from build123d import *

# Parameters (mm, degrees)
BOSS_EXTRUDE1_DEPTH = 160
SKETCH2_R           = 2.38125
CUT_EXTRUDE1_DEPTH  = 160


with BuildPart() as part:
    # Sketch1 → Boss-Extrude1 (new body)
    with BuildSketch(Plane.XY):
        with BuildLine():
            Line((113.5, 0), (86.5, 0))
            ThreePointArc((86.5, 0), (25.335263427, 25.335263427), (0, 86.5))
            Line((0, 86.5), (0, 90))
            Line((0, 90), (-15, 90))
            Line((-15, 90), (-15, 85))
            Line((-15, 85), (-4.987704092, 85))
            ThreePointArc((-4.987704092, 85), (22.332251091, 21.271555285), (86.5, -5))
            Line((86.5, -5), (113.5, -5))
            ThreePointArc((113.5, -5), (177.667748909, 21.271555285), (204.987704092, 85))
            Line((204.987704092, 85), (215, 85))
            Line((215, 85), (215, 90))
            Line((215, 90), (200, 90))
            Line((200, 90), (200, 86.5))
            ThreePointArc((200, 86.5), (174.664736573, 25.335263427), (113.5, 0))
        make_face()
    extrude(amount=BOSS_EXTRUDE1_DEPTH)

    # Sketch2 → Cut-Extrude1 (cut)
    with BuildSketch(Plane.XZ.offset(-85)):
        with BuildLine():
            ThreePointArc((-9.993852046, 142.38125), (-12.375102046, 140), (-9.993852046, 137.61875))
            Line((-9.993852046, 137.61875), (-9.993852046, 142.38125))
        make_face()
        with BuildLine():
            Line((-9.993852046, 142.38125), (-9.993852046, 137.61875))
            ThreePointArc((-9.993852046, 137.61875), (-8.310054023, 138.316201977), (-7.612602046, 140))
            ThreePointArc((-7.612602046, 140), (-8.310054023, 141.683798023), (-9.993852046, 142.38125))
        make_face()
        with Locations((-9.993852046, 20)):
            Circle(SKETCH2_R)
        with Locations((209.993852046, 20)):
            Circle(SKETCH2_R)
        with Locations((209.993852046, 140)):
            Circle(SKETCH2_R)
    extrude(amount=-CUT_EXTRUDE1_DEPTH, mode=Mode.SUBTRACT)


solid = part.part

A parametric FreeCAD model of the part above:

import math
import FreeCAD as App
import Part
import Sketcher

V = App.Vector
Q = App.Units.Quantity

doc = App.newDocument("Part")
body = doc.addObject("PartDesign::Body", "Body")

# Sketch on XY plane
sketch1 = body.newObject("Sketcher::SketchObject", "Sketch")
sketch1.AttachmentSupport = (doc.getObject("XY_Plane"), [""])
sketch1.MapMode = "FlatFace"
sketch1.addGeometry(Part.LineSegment(V(113.5, 0, 0), V(86.5, 0, 0)), False)
sketch1.addGeometry(Part.ArcOfCircle(Part.Circle(V(86.5, 86.5, 0), V(0, 0, 1), 86.5), math.radians(180), math.radians(270)), False)
sketch1.addGeometry(Part.LineSegment(V(0, 86.5, 0), V(0, 90, 0)), False)
sketch1.addGeometry(Part.LineSegment(V(0, 90, 0), V(-15, 90, 0)), False)
sketch1.addGeometry(Part.LineSegment(V(-15, 90, 0), V(-15, 85, 0)), False)
sketch1.addGeometry(Part.LineSegment(V(-15, 85, 0), V(-5, 85, 0)), False)
sketch1.addGeometry(Part.ArcOfCircle(Part.Circle(V(86.5, 86.5, 0), V(0, 0, 1), 91.5), math.radians(-179), math.radians(-90)), False)
sketch1.addGeometry(Part.LineSegment(V(86.5, -5, 0), V(113.5, -5, 0)), False)
sketch1.addGeometry(Part.ArcOfCircle(Part.Circle(V(113.5, 86.5, 0), V(0, 0, 1), 91.5), math.radians(-90), math.radians(-1)), False)
sketch1.addGeometry(Part.LineSegment(V(205, 85, 0), V(215, 85, 0)), False)
sketch1.addGeometry(Part.LineSegment(V(215, 85, 0), V(215, 90, 0)), False)
sketch1.addGeometry(Part.LineSegment(V(215, 90, 0), V(200, 90, 0)), False)
sketch1.addGeometry(Part.LineSegment(V(200, 90, 0), V(200, 86.5, 0)), False)
sketch1.addGeometry(Part.ArcOfCircle(Part.Circle(V(113.5, 86.5, 0), V(0, 0, 1), 86.5), math.radians(-90), math.radians(0)), False)
sketch1.addConstraint(Sketcher.Constraint("Tangent", 0, 2, 1, 2))
sketch1.addConstraint(Sketcher.Constraint("Tangent", 1, 1, 2, 1))
sketch1.addConstraint(Sketcher.Constraint("Coincident", 2, 2, 3, 1))
sketch1.addConstraint(Sketcher.Constraint("Coincident", 3, 2, 4, 1))
sketch1.addConstraint(Sketcher.Constraint("Coincident", 4, 2, 5, 1))
sketch1.addConstraint(Sketcher.Constraint("Coincident", 5, 2, 6, 1))
sketch1.addConstraint(Sketcher.Constraint("Tangent", 6, 2, 7, 1))
sketch1.addConstraint(Sketcher.Constraint("Tangent", 7, 2, 8, 1))
sketch1.addConstraint(Sketcher.Constraint("Coincident", 8, 2, 9, 1))
sketch1.addConstraint(Sketcher.Constraint("Coincident", 9, 2, 10, 1))
sketch1.addConstraint(Sketcher.Constraint("Coincident", 10, 2, 11, 1))
sketch1.addConstraint(Sketcher.Constraint("Coincident", 11, 2, 12, 1))
sketch1.addConstraint(Sketcher.Constraint("Tangent", 12, 2, 13, 2))
sketch1.addConstraint(Sketcher.Constraint("Tangent", 13, 1, 0, 1))
sketch1.addConstraint(Sketcher.Constraint("Horizontal", 0))
sketch1.addConstraint(Sketcher.Constraint("Vertical", 2))
sketch1.addConstraint(Sketcher.Constraint("Horizontal", 3))
sketch1.addConstraint(Sketcher.Constraint("Vertical", 4))
sketch1.addConstraint(Sketcher.Constraint("Horizontal", 5))
sketch1.addConstraint(Sketcher.Constraint("Horizontal", 7))
sketch1.addConstraint(Sketcher.Constraint("Horizontal", 9))
sketch1.addConstraint(Sketcher.Constraint("Vertical", 10))
sketch1.addConstraint(Sketcher.Constraint("Horizontal", 11))
sketch1.addConstraint(Sketcher.Constraint("Vertical", 12))
sketch1.addConstraint(Sketcher.Constraint("Coincident", 6, 3, 1, 3))
sketch1.addConstraint(Sketcher.Constraint("Coincident", 13, 3, 8, 3))
sketch1.addConstraint(Sketcher.Constraint("Equal", 6, 8))
sketch1.addConstraint(Sketcher.Constraint("PointOnObject", 0, 2, -1))
sketch1.addConstraint(Sketcher.Constraint("PointOnObject", 1, 1, -2))
sketch1.addConstraint(Sketcher.Constraint("Horizontal", 5, 2, 8, 2))
sketch1.addConstraint(Sketcher.Constraint("Horizontal", 3, 2, 10, 2))
sketch1.addConstraint(Sketcher.Constraint("Equal", 5, 9))
sketch1.addConstraint(Sketcher.Constraint("Radius", 1, Q("86.5 mm")))
sketch1.addConstraint(Sketcher.Constraint("Radius", 6, Q("91.5 mm")))
sketch1.addConstraint(Sketcher.Constraint("DistanceX", 0, 2, 0, 1, Q("27 mm")))
sketch1.addConstraint(Sketcher.Constraint("DistanceX", 3, 2, 3, 1, Q("15 mm")))
sketch1.addConstraint(Sketcher.Constraint("DistanceY", 4, 2, 4, 1, Q("5 mm")))
sketch1.addConstraint(Sketcher.Constraint("DistanceY", 2, 1, 2, 2, Q("3.5 mm")))
pad1 = body.newObject("PartDesign::Pad", "Pad")
pad1.Profile = sketch1
pad1.Length = 160

# Sketch on XZ plane
sketch2 = body.newObject("Sketcher::SketchObject", "Sketch001")
sketch2.AttachmentSupport = (doc.getObject("XZ_Plane"), [""])
sketch2.MapMode = "FlatFace"
sketch2.AttachmentOffset = App.Placement(V(0, 0, -85), App.Rotation())
sketch2.addGeometry(Part.ArcOfCircle(Part.Circle(V(-10, 140, 0), V(0, 0, 1), 2.4), math.radians(90), math.radians(270)), False)
sketch2.addGeometry(Part.ArcOfCircle(Part.Circle(V(-10, 140, 0), V(0, 0, 1), 2.4), math.radians(-90), math.radians(0)), False)
sketch2.addGeometry(Part.ArcOfCircle(Part.Circle(V(-10, 140, 0), V(0, 0, 1), 2.4), math.radians(0), math.radians(90)), False)
sketch2.addGeometry(Part.Circle(V(-10, 20, 0), V(0, 0, 1), 2.4), False)
sketch2.addGeometry(Part.Circle(V(210, 20, 0), V(0, 0, 1), 2.4), False)
sketch2.addGeometry(Part.Circle(V(210, 140, 0), V(0, 0, 1), 2.4), False)
sketch2.addConstraint(Sketcher.Constraint("Tangent", 0, 2, 1, 1))
sketch2.addConstraint(Sketcher.Constraint("Tangent", 1, 2, 2, 1))
sketch2.addConstraint(Sketcher.Constraint("Tangent", 2, 2, 0, 1))
sketch2.addConstraint(Sketcher.Constraint("Equal", 2, 3))
sketch2.addConstraint(Sketcher.Constraint("Equal", 3, 4))
sketch2.addConstraint(Sketcher.Constraint("Equal", 4, 5))
sketch2.addConstraint(Sketcher.Constraint("Horizontal", 3, 3, 4, 3))
sketch2.addConstraint(Sketcher.Constraint("Horizontal", 2, 3, 5, 3))
sketch2.addConstraint(Sketcher.Constraint("Horizontal", 5, 3, 1, 2))
sketch2.addConstraint(Sketcher.Constraint("Vertical", 2, 3, 3, 3))
sketch2.addConstraint(Sketcher.Constraint("Vertical", 4, 3, 5, 3))
sketch2.addConstraint(Sketcher.Constraint("Vertical", 3, 3, 0, 2))
sketch2.addConstraint(Sketcher.Constraint("Vertical", 0, 2, 2, 2))
sketch2.addConstraint(Sketcher.Constraint("DistanceY", -1, 1, 0, 3, Q("140 mm")))
sketch2.addConstraint(Sketcher.Constraint("DistanceY", -1, 1, 3, 3, Q("20 mm")))
sketch2.addConstraint(Sketcher.Constraint("Diameter", 3, Q("4.7625 mm")))
sketch2.addConstraint(Sketcher.Constraint("DistanceX", 0, 3, -1, 1, Q("9.993852 mm")))
sketch2.addConstraint(Sketcher.Constraint("DistanceX", -1, 1, 4, 3, Q("209.993852 mm")))
pocket1 = body.newObject("PartDesign::Pocket", "Pocket")
pocket1.Profile = sketch2
pocket1.Length = 160

doc.recompute()
